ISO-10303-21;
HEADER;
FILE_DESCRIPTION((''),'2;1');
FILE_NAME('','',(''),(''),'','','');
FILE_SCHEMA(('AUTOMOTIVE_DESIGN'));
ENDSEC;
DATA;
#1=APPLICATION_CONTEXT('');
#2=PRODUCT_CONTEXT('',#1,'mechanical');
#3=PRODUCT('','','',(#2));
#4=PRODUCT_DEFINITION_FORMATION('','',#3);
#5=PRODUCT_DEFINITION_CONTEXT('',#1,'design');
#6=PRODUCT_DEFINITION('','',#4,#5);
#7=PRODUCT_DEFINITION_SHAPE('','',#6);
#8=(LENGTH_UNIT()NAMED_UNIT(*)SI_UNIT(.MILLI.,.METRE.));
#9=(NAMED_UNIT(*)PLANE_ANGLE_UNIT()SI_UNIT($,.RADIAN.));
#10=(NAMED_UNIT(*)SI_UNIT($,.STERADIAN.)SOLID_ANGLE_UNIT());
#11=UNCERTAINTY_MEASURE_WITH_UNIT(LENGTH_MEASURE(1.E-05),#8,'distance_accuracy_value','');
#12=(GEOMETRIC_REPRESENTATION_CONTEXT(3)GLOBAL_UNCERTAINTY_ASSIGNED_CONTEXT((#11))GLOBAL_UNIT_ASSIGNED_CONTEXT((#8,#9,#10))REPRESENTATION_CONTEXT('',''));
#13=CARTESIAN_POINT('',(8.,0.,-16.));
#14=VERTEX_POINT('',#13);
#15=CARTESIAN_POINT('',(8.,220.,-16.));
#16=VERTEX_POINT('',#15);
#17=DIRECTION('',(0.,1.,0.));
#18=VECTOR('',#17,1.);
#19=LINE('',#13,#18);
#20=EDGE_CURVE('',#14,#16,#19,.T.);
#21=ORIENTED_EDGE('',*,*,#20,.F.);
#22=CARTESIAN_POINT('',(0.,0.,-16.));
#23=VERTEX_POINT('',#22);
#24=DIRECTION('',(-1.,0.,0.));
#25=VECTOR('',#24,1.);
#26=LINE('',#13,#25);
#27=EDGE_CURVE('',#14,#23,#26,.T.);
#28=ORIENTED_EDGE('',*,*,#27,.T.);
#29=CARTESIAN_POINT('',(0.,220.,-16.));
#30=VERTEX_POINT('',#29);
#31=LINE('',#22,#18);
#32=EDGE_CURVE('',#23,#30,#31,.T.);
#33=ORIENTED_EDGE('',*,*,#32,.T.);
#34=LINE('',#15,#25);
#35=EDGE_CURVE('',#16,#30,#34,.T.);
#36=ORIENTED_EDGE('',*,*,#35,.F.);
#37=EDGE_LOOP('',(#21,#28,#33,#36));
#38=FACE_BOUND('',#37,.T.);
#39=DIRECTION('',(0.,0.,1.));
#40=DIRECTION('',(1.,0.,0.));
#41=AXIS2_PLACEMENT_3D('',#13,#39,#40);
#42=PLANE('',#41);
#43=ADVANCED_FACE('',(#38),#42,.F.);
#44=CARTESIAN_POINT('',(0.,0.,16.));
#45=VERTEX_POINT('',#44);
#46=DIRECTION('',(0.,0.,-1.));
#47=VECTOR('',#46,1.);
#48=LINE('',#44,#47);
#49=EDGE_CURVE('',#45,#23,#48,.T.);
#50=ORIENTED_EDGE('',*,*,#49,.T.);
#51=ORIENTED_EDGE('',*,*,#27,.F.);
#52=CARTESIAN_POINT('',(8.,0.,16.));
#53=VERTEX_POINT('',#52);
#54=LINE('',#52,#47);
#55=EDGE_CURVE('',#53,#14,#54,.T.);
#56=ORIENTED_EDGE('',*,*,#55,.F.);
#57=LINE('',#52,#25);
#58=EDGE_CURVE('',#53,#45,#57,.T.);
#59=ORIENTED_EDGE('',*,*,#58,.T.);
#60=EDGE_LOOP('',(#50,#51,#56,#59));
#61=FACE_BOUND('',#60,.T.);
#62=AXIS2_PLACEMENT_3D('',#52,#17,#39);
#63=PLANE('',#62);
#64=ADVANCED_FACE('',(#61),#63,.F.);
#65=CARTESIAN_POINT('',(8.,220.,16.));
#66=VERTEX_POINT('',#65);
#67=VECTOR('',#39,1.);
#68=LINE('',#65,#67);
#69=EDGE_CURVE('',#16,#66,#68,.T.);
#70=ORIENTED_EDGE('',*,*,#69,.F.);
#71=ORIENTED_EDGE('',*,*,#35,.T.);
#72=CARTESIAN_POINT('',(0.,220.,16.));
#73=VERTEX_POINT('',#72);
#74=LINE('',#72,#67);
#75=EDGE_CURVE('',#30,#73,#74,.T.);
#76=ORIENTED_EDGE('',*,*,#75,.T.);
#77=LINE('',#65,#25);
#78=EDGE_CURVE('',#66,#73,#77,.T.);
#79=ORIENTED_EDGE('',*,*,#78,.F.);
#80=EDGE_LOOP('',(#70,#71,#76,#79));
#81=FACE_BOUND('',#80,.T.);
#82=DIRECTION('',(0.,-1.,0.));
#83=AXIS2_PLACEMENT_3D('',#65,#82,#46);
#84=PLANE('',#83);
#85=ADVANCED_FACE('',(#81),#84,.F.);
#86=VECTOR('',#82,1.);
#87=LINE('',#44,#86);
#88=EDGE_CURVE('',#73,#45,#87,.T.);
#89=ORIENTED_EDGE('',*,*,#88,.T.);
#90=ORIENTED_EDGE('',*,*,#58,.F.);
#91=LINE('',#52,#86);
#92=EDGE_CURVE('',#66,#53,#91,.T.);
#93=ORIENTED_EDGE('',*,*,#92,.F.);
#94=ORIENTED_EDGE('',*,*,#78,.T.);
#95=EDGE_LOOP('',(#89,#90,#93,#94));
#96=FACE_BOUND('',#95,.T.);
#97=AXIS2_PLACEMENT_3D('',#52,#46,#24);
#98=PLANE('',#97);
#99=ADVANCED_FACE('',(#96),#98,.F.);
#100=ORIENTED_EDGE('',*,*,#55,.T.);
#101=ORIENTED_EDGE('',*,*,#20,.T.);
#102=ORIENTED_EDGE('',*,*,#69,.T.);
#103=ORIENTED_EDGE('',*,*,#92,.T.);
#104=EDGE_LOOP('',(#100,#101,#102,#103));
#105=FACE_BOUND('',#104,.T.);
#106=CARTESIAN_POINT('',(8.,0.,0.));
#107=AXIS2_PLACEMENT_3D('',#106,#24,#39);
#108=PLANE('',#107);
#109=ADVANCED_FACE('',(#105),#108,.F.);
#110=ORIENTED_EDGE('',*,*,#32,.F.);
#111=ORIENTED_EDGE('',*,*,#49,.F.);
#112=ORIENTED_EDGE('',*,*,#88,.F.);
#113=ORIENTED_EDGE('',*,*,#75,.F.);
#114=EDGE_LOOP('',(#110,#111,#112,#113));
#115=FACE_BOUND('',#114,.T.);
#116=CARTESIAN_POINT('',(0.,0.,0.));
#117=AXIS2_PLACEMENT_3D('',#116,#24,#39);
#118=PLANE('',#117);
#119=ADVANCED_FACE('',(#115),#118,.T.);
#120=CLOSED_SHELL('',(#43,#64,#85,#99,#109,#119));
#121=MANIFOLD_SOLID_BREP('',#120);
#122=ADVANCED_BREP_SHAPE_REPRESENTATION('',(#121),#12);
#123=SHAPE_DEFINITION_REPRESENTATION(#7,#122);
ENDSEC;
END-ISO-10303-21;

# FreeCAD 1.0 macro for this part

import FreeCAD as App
import Part
import Sketcher
from FreeCAD import Vector
Q = App.Units.Quantity


def add_polygon(sketch, points):
    """Adds a closed chain of lines whose ends are joined by coincident constraints."""
    first, n = sketch.GeometryCount, len(points)
    for a, b in zip(points, points[1:] + points[:1]):
        sketch.addGeometry(Part.LineSegment(App.Vector(*a, 0), App.Vector(*b, 0)), False)
    for i in range(n):
        sketch.addConstraint(Sketcher.Constraint("Coincident", first + i, 2, first + (i + 1) % n, 1))

doc = App.newDocument("Part")
params = doc.addObject("Spreadsheet::Sheet", "Params")
for row, (alias, value) in enumerate([
    ("sketch1_width", "220 mm"),
    ("sketch1_height", "32 mm"),
    ("pad1_length", "8 mm"),
], start=1):
    params.set(f"A{row}", alias)
    params.set(f"B{row}", "=" + value)
    params.setAlias(f"B{row}", alias)

body = doc.addObject("PartDesign::Body", "Body")

# Sketch on YZ plane
sketch1 = body.newObject("Sketcher::SketchObject", "Sketch")
sketch1.AttachmentSupport = (doc.getObject("YZ_Plane"), [""])
sketch1.MapMode = "FlatFace"
add_polygon(sketch1, [(220, 16), (0, 16), (0, -16), (220, -16)])  # lines 0-3
sketch1.addConstraint([
    Sketcher.Constraint("Horizontal", 0),
    Sketcher.Constraint("Vertical", 1),
    Sketcher.Constraint("Horizontal", 2),
    Sketcher.Constraint("Vertical", 3),
    Sketcher.Constraint("Symmetric", 0, 2, 1, 2, -1, 1),
    Sketcher.Constraint("DistanceX", 0, 2, 0, 1, Q("220 mm")),
    Sketcher.Constraint("DistanceY", 1, 2, 1, 1, Q("32 mm")),
])
sketch1.setExpression("Constraints[9]", "Params.sketch1_width")
sketch1.setExpression("Constraints[10]", "Params.sketch1_height")
pad1 = body.newObject("PartDesign::Pad", "Pad")
pad1.Profile = sketch1
pad1.setExpression("Length", "Params.pad1_length")

doc.recompute()
